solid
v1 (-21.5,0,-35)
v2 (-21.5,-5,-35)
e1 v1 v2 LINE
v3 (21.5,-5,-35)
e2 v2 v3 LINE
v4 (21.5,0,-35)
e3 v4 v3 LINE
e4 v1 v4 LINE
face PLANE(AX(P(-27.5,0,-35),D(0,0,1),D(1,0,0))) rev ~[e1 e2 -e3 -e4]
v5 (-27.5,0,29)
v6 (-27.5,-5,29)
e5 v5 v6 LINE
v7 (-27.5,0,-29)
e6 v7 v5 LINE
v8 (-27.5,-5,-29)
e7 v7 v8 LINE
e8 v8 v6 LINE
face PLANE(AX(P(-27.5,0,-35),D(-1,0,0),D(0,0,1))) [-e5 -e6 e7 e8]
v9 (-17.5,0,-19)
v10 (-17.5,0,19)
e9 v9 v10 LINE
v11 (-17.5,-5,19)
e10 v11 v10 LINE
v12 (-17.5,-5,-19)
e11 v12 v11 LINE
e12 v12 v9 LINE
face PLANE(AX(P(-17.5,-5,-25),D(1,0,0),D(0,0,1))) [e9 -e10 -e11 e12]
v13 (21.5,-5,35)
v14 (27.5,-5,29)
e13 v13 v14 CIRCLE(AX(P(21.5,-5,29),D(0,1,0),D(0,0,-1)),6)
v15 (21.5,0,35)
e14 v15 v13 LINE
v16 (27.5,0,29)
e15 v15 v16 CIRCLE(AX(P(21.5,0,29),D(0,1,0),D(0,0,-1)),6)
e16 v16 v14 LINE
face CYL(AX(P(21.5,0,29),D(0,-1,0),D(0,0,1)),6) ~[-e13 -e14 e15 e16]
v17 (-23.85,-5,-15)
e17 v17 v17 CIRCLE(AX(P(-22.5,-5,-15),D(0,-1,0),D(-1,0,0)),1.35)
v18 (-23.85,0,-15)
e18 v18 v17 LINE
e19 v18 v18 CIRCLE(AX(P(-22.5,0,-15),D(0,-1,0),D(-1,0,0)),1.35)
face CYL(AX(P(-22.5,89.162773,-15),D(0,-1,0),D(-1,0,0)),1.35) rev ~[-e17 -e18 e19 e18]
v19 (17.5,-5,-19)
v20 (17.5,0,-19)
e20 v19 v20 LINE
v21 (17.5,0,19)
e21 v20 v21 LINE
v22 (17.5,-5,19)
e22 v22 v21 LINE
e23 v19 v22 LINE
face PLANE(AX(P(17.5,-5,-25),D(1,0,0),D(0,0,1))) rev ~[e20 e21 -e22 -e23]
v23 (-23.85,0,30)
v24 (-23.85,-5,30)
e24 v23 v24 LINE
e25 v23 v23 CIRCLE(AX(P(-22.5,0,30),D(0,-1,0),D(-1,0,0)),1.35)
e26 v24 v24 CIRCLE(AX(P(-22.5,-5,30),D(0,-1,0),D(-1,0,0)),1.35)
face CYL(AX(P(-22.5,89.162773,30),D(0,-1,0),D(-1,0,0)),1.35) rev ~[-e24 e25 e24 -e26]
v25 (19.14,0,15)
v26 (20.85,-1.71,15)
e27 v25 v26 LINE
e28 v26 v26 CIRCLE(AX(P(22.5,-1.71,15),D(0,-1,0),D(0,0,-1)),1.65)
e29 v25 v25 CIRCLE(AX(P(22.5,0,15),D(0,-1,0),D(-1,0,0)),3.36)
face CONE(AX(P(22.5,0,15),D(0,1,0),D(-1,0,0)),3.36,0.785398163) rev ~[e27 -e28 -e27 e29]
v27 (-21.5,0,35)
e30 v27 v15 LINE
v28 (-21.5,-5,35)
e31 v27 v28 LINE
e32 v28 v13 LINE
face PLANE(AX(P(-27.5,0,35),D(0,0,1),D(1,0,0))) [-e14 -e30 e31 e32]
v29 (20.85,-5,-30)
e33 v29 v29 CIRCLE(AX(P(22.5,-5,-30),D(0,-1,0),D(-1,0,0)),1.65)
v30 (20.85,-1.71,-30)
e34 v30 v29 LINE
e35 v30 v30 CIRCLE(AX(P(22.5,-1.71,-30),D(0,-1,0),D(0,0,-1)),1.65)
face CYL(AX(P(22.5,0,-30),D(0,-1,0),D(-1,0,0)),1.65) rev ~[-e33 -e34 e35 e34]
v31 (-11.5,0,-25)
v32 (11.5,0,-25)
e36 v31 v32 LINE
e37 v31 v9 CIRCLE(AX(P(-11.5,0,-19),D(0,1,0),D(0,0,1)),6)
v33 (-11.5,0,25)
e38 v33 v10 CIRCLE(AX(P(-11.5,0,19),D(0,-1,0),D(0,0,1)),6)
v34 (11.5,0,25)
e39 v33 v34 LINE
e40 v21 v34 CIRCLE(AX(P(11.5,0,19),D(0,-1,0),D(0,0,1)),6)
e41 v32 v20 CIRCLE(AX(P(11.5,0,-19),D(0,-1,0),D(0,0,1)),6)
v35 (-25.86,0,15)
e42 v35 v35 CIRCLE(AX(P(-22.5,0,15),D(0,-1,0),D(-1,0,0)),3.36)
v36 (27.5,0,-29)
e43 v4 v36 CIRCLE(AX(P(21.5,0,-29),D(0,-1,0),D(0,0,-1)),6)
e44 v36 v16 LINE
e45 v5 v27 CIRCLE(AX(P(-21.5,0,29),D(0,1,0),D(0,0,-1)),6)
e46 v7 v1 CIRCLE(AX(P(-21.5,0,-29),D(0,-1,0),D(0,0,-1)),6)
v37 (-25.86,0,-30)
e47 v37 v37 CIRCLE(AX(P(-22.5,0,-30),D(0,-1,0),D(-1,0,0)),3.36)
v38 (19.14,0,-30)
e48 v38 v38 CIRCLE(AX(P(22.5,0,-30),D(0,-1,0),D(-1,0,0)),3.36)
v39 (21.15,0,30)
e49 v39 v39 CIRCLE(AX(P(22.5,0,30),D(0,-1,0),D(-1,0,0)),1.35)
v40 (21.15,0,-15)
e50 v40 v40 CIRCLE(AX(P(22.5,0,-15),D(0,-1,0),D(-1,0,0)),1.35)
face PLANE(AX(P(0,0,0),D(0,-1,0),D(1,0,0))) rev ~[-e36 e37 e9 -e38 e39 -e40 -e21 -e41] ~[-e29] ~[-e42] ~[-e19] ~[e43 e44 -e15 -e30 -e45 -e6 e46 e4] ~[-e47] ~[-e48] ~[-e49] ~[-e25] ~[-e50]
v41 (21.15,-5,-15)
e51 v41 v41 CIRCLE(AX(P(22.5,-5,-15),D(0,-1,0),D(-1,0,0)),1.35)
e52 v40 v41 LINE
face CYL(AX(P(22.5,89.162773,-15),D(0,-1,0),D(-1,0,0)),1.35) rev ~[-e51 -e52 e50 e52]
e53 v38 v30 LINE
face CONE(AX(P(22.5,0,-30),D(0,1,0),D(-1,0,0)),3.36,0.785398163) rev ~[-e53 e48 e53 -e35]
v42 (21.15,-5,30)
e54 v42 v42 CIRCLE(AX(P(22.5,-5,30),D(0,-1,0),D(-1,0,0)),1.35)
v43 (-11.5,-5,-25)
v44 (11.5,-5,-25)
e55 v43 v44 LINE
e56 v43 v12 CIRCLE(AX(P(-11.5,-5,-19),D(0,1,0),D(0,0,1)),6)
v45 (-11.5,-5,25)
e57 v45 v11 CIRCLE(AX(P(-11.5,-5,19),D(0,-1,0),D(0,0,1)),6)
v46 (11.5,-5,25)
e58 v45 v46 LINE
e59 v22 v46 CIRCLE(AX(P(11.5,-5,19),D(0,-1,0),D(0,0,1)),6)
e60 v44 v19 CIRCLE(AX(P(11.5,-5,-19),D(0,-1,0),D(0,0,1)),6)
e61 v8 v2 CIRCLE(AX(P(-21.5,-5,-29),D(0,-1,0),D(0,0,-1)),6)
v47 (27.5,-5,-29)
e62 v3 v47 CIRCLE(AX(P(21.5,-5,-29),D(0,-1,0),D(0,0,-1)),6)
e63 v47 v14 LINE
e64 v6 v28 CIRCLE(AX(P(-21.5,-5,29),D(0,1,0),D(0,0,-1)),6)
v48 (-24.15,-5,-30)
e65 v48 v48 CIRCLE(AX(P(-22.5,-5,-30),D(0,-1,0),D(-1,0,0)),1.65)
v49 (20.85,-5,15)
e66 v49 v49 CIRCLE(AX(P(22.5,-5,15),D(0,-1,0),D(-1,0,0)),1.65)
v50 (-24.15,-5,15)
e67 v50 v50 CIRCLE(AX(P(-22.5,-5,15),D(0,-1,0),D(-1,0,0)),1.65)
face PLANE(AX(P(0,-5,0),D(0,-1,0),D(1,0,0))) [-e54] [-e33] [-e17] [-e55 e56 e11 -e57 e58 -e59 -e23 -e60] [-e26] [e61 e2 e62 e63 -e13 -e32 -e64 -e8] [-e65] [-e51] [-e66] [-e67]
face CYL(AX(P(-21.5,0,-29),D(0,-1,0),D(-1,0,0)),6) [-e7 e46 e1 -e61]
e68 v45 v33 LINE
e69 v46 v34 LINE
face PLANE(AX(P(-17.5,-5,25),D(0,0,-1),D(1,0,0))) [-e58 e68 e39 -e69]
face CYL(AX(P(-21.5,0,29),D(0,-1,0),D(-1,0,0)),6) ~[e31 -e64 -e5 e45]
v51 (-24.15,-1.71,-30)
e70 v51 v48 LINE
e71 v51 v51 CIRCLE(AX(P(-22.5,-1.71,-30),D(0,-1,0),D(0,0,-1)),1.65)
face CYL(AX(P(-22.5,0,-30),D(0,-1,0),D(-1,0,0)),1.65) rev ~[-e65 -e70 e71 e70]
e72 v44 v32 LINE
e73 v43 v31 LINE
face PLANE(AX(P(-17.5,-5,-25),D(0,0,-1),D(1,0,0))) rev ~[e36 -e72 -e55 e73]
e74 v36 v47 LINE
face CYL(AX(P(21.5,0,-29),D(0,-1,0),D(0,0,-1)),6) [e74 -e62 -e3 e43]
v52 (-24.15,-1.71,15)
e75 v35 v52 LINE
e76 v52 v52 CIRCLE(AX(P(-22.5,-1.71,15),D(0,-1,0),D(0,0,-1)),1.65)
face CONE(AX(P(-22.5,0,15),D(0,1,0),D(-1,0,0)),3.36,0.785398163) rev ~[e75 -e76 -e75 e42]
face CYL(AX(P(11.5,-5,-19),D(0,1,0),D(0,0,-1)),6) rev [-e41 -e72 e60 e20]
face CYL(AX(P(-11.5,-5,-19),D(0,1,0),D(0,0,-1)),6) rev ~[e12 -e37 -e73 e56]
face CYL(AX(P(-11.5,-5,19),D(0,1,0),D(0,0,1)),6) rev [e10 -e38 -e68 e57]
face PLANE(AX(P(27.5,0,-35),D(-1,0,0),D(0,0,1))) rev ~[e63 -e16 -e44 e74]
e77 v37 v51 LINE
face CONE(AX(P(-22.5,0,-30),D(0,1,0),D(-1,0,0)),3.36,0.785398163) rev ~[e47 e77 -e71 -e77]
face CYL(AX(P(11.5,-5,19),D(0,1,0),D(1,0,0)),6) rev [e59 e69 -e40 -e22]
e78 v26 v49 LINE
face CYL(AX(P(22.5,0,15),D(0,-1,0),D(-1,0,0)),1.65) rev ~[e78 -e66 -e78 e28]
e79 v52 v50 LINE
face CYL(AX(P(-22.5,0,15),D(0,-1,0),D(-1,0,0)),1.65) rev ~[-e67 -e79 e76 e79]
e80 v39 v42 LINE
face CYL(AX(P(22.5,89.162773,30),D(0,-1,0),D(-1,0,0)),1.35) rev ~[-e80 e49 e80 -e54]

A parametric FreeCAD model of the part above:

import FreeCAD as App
import Part
import Sketcher
from FreeCAD import Vector


def edges_at(feature, points):
    """Names of the edges that pass closest to the given points."""
    edges = feature.Shape.Edges
    near = lambda p: min(range(len(edges)), key=lambda i: edges[i].distToShape(Part.Vertex(*p))[0])
    return sorted({f"Edge{near(p) + 1}" for p in points})

doc = App.newDocument("Part")
body = doc.addObject("PartDesign::Body", "Body")

sketch1 = doc.addObject("Sketcher::SketchObject", "Sketch")
body.addObject(sketch1)
sketch1.AttachmentSupport = (doc.XZ_Plane, [""])
sketch1.MapMode = "FlatFace"
sketch1.addGeometry([
    Part.LineSegment(Vector(-27.5, 35, 0), Vector(-27.5, -35, 0)),
    Part.LineSegment(Vector(-27.5, -35, 0), Vector(27.5, -35, 0)),
    Part.LineSegment(Vector(27.5, -35, 0), Vector(27.5, 35, 0)),
    Part.LineSegment(Vector(27.5, 35, 0), Vector(-27.5, 35, 0)),
], False)
sketch1.addConstraint([
    Sketcher.Constraint("Coincident", 0, 2, 1, 1),
    Sketcher.Constraint("Coincident", 1, 2, 2, 1),
    Sketcher.Constraint("Coincident", 2, 2, 3, 1),
    Sketcher.Constraint("Coincident", 3, 2, 0, 1),
    Sketcher.Constraint("Vertical", 0),
    Sketcher.Constraint("Horizontal", 1),
    Sketcher.Constraint("Vertical", 2),
    Sketcher.Constraint("Horizontal", 3),
    Sketcher.Constraint("Symmetric", 0, 2, 2, 2, -1, 1),
    Sketcher.Constraint("DistanceX", 1, 1, 1, 2, 55.0),
    Sketcher.Constraint("DistanceY", 0, 2, 0, 1, 70.0),
])
pad1 = doc.addObject("PartDesign::Pad", "Pad")
body.addObject(pad1)
pad1.Profile = sketch1
pad1.Length = 5

sketch2 = doc.addObject("Sketcher::SketchObject", "Sketch001")
body.addObject(sketch2)
sketch2.AttachmentSupport = (doc.XZ_Plane, [""])
sketch2.MapMode = "FlatFace"
sketch2.addGeometry([
    Part.Circle(Vector(22.5, 15, 0), Vector(0, 0, 1), 1.65),
    Part.Circle(Vector(22.5, -30, 0), Vector(0, 0, 1), 1.65),
    Part.Circle(Vector(-22.5, -30, 0), Vector(0, 0, 1), 1.65),
    Part.Circle(Vector(-22.5, 15, 0), Vector(0, 0, 1), 1.65),
], False)
sketch2.addConstraint([
    Sketcher.Constraint("Equal", 0, 1),
    Sketcher.Constraint("Equal", 1, 2),
    Sketcher.Constraint("Equal", 2, 3),
    Sketcher.Constraint("Symmetric", 1, 3, 2, 3, -2),
    Sketcher.Constraint("Symmetric", 0, 3, 3, 3, -2),
    Sketcher.Constraint("Vertical", 0, 3, 1, 3),
    Sketcher.Constraint("Diameter", 0, 3.3),
    Sketcher.Constraint("DistanceY", -1, 1, 0, 3, 15.0),
    Sketcher.Constraint("DistanceY", 1, 3, -1, 1, 30.0),
    Sketcher.Constraint("DistanceX", 2, 3, 1, 3, 45.0),
])
doc.recompute()
hole = doc.addObject("PartDesign::Hole", "Hole")
body.addObject(hole)
hole.Profile = sketch2
hole.ThreadType = "None"
hole.Diameter = 3.3
hole.DepthType = "ThroughAll"
hole.HoleCutType = "Countersink"
hole.HoleCutDiameter = 6.72
hole.HoleCutCountersinkAngle = 90
hole.Reversed = True

sketch3 = doc.addObject("Sketcher::SketchObject", "Sketch002")
body.addObject(sketch3)
sketch3.AttachmentSupport = (doc.XZ_Plane, [""])
sketch3.MapMode = "FlatFace"
sketch3.addGeometry([
    Part.Circle(Vector(22.5, 30, 0), Vector(0, 0, 1), 1.35),
    Part.Circle(Vector(-22.5, 30, 0), Vector(0, 0, 1), 1.35),
    Part.Circle(Vector(-22.5, -15, 0), Vector(0, 0, 1), 1.35),
    Part.Circle(Vector(22.5, -15, 0), Vector(0, 0, 1), 1.35),
], False)
sketch3.addConstraint([
    Sketcher.Constraint("Equal", 0, 1),
    Sketcher.Constraint("Equal", 1, 2),
    Sketcher.Constraint("Equal", 2, 3),
    Sketcher.Constraint("Symmetric", 0, 3, 1, 3, -2),
    Sketcher.Constraint("Symmetric", 2, 3, 3, 3, -2),
    Sketcher.Constraint("Vertical", 1, 3, 2, 3),
    Sketcher.Constraint("Diameter", 0, 2.7),
    Sketcher.Constraint("DistanceY", -1, 1, 0, 3, 30.0),
    Sketcher.Constraint("DistanceY", 2, 3, -1, 1, 15.0),
    Sketcher.Constraint("DistanceX", 1, 3, 0, 3, 45.0),
])
doc.recompute()
hole2 = doc.addObject("PartDesign::Hole", "Hole001")
body.addObject(hole2)
hole2.Profile = sketch3
hole2.ThreadType = "None"
hole2.Diameter = 2.7
hole2.DepthType = "ThroughAll"
hole2.Reversed = True

sketch4 = doc.addObject("Sketcher::SketchObject", "Sketch003")
body.addObject(sketch4)
sketch4.AttachmentSupport = (doc.XZ_Plane, [""])
sketch4.MapMode = "FlatFace"
sketch4.AttachmentOffset = App.Placement(Vector(0, 0, 5), App.Rotation())
sketch4.addGeometry([
    Part.LineSegment(Vector(-17.5, 25, 0), Vector(-17.5, -25, 0)),
    Part.LineSegment(Vector(-17.5, -25, 0), Vector(17.5, -25, 0)),
    Part.LineSegment(Vector(17.5, -25, 0), Vector(17.5, 25, 0)),
    Part.LineSegment(Vector(17.5, 25, 0), Vector(-17.5, 25, 0)),
], False)
sketch4.addConstraint([
    Sketcher.Constraint("Coincident", 0, 2, 1, 1),
    Sketcher.Constraint("Coincident", 1, 2, 2, 1),
    Sketcher.Constraint("Coincident", 2, 2, 3, 1),
    Sketcher.Constraint("Coincident", 3, 2, 0, 1),
    Sketcher.Constraint("Vertical", 0),
    Sketcher.Constraint("Horizontal", 1),
    Sketcher.Constraint("Vertical", 2),
    Sketcher.Constraint("Horizontal", 3),
    Sketcher.Constraint("Symmetric", 0, 2, 2, 2, -1, 1),
    Sketcher.Constraint("DistanceX", 1, 1, 1, 2, 35.0),
    Sketcher.Constraint("DistanceY", 0, 2, 0, 1, 50.0),
])
pocket1 = doc.addObject("PartDesign::Pocket", "Pocket")
body.addObject(pocket1)
pocket1.Profile = sketch4
pocket1.Type = "ThroughAll"
doc.recompute()

fillet = doc.addObject("PartDesign::Fillet", "Fillet")
body.addObject(fillet)
fillet.Base = (pocket1, edges_at(pocket1, [
    (-27.5, -2.5, 35),
    (-27.5, -2.5, -35),
    (27.5, -2.5, 35),
    (27.5, -2.5, -35),
    (-17.5, -2.5, -25),
    (17.5, -2.5, 25),
    (17.5, -2.5, -25),
    (-17.5, -2.5, 25),
]))
fillet.Radius = 6

doc.recompute()
